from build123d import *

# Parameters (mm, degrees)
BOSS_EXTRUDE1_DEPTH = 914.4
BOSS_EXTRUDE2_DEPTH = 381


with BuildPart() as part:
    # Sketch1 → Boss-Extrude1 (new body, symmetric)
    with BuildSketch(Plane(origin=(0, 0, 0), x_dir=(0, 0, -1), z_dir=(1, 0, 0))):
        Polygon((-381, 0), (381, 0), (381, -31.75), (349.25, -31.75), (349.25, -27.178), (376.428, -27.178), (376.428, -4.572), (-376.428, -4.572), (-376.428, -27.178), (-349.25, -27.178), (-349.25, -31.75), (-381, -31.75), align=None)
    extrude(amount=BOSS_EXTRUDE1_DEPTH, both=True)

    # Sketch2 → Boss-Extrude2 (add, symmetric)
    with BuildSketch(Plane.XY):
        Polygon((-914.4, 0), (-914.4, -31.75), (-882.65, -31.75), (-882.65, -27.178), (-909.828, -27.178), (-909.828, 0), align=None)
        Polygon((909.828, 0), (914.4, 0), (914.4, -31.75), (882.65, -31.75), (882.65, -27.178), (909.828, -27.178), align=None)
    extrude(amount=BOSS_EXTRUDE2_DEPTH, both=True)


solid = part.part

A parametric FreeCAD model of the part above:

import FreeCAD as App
import Part
import Sketcher

V = App.Vector
Q = App.Units.Quantity

doc = App.newDocument("Part")
body = doc.addObject("PartDesign::Body", "Body")

# Sketch on YZ plane
sketch1 = body.newObject("Sketcher::SketchObject", "Sketch")
sketch1.AttachmentSupport = (doc.getObject("YZ_Plane"), [""])
sketch1.MapMode = "FlatFace"
sketch1.addGeometry(Part.LineSegment(V(0, -381, 0), V(0, 381, 0)), False)
sketch1.addGeometry(Part.LineSegment(V(0, 381, 0), V(-31.8, 381, 0)), False)
sketch1.addGeometry(Part.LineSegment(V(-31.8, 381, 0), V(-31.8, 349.2, 0)), False)
sketch1.addGeometry(Part.LineSegment(V(-31.8, 349.2, 0), V(-27.2, 349.2, 0)), False)
sketch1.addGeometry(Part.LineSegment(V(-27.2, 349.2, 0), V(-27.2, 376.4, 0)), False)
sketch1.addGeometry(Part.LineSegment(V(-27.2, 376.4, 0), V(-4.6, 376.4, 0)), False)
sketch1.addGeometry(Part.LineSegment(V(-4.6, 376.4, 0), V(-4.6, -376.4, 0)), False)
sketch1.addGeometry(Part.LineSegment(V(-4.6, -376.4, 0), V(-27.2, -376.4, 0)), False)
sketch1.addGeometry(Part.LineSegment(V(-27.2, -376.4, 0), V(-27.2, -349.2, 0)), False)
sketch1.addGeometry(Part.LineSegment(V(-27.2, -349.2, 0), V(-31.8, -349.2, 0)), False)
sketch1.addGeometry(Part.LineSegment(V(-31.8, -349.2, 0), V(-31.8, -381, 0)), False)
sketch1.addGeometry(Part.LineSegment(V(-31.8, -381, 0), V(0, -381, 0)), False)
sketch1.addConstraint(Sketcher.Constraint("Coincident", 0, 2, 1, 1))
sketch1.addConstraint(Sketcher.Constraint("Coincident", 1, 2, 2, 1))
sketch1.addConstraint(Sketcher.Constraint("Coincident", 2, 2, 3, 1))
sketch1.addConstraint(Sketcher.Constraint("Coincident", 3, 2, 4, 1))
sketch1.addConstraint(Sketcher.Constraint("Coincident", 4, 2, 5, 1))
sketch1.addConstraint(Sketcher.Constraint("Coincident", 5, 2, 6, 1))
sketch1.addConstraint(Sketcher.Constraint("Coincident", 6, 2, 7, 1))
sketch1.addConstraint(Sketcher.Constraint("Coincident", 7, 2, 8, 1))
sketch1.addConstraint(Sketcher.Constraint("Coincident", 8, 2, 9, 1))
sketch1.addConstraint(Sketcher.Constraint("Coincident", 9, 2, 10, 1))
sketch1.addConstraint(Sketcher.Constraint("Coincident", 10, 2, 11, 1))
sketch1.addConstraint(Sketcher.Constraint("Coincident", 11, 2, 0, 1))
sketch1.addConstraint(Sketcher.Constraint("Vertical", 0))
sketch1.addConstraint(Sketcher.Constraint("Horizontal", 1))
sketch1.addConstraint(Sketcher.Constraint("Vertical", 2))
sketch1.addConstraint(Sketcher.Constraint("Horizontal", 3))
sketch1.addConstraint(Sketcher.Constraint("Vertical", 4))
sketch1.addConstraint(Sketcher.Constraint("Horizontal", 5))
sketch1.addConstraint(Sketcher.Constraint("Vertical", 6))
sketch1.addConstraint(Sketcher.Constraint("Horizontal", 7))
sketch1.addConstraint(Sketcher.Constraint("Vertical", 8))
sketch1.addConstraint(Sketcher.Constraint("Horizontal", 9))
sketch1.addConstraint(Sketcher.Constraint("Vertical", 10))
sketch1.addConstraint(Sketcher.Constraint("Horizontal", 11))
sketch1.addConstraint(Sketcher.Constraint("Symmetric", 0, 2, 11, 2, -1, 1))
sketch1.addConstraint(Sketcher.Constraint("Symmetric", 4, 2, 7, 2, -1))
sketch1.addConstraint(Sketcher.Constraint("Symmetric", 2, 2, 9, 2, -1))
sketch1.addConstraint(Sketcher.Constraint("Equal", 11, 2))
sketch1.addConstraint(Sketcher.Constraint("DistanceY", 0, 1, 0, 2, Q("30 in")))
sketch1.addConstraint(Sketcher.Constraint("DistanceX", 1, 2, 1, 1, Q("1.25 in")))
sketch1.addConstraint(Sketcher.Constraint("DistanceX", 3, 1, 3, 2, Q("0.18 in")))
sketch1.addConstraint(Sketcher.Constraint("DistanceX", 5, 1, 5, 2, Q("0.89 in")))
sketch1.addConstraint(Sketcher.Constraint("DistanceY", 4, 1, 4, 2, Q("1.07 in")))
pad1 = body.newObject("PartDesign::Pad", "Pad")
pad1.Profile = sketch1
pad1.Length = Q("72 in")
pad1.Midplane = True

# Sketch on XY plane
sketch2 = body.newObject("Sketcher::SketchObject", "Sketch001")
sketch2.AttachmentSupport = (doc.getObject("XY_Plane"), [""])
sketch2.MapMode = "FlatFace"
sketch2.addGeometry(Part.LineSegment(V(-914.4, 0, 0), V(-914.4, -31.8, 0)), False)
sketch2.addGeometry(Part.LineSegment(V(-914.4, -31.8, 0), V(-882.6, -31.8, 0)), False)
sketch2.addGeometry(Part.LineSegment(V(-882.6, -31.8, 0), V(-882.6, -27.2, 0)), False)
sketch2.addGeometry(Part.LineSegment(V(-882.6, -27.2, 0), V(-909.8, -27.2, 0)), False)
sketch2.addGeometry(Part.LineSegment(V(-909.8, -27.2, 0), V(-909.8, 0, 0)), False)
sketch2.addGeometry(Part.LineSegment(V(-909.8, 0, 0), V(-914.4, 0, 0)), False)
sketch2.addGeometry(Part.LineSegment(V(914.4, 0, 0), V(909.8, 0, 0)), False)
sketch2.addGeometry(Part.LineSegment(V(909.8, 0, 0), V(909.8, -27.2, 0)), False)
sketch2.addGeometry(Part.LineSegment(V(909.8, -27.2, 0), V(882.6, -27.2, 0)), False)
sketch2.addGeometry(Part.LineSegment(V(882.6, -27.2, 0), V(882.6, -31.8, 0)), False)
sketch2.addGeometry(Part.LineSegment(V(882.6, -31.8, 0), V(914.4, -31.8, 0)), False)
sketch2.addGeometry(Part.LineSegment(V(914.4, -31.8, 0), V(914.4, 0, 0)), False)
sketch2.addConstraint(Sketcher.Constraint("Coincident", 0, 2, 1, 1))
sketch2.addConstraint(Sketcher.Constraint("Coincident", 1, 2, 2, 1))
sketch2.addConstraint(Sketcher.Constraint("Coincident", 2, 2, 3, 1))
sketch2.addConstraint(Sketcher.Constraint("Coincident", 3, 2, 4, 1))
sketch2.addConstraint(Sketcher.Constraint("Coincident", 4, 2, 5, 1))
sketch2.addConstraint(Sketcher.Constraint("Coincident", 5, 2, 0, 1))
sketch2.addConstraint(Sketcher.Constraint("Coincident", 6, 2, 7, 1))
sketch2.addConstraint(Sketcher.Constraint("Coincident", 7, 2, 8, 1))
sketch2.addConstraint(Sketcher.Constraint("Coincident", 8, 2, 9, 1))
sketch2.addConstraint(Sketcher.Constraint("Coincident", 9, 2, 10, 1))
sketch2.addConstraint(Sketcher.Constraint("Coincident", 10, 2, 11, 1))
sketch2.addConstraint(Sketcher.Constraint("Coincident", 11, 2, 6, 1))
sketch2.addConstraint(Sketcher.Constraint("Vertical", 0))
sketch2.addConstraint(Sketcher.Constraint("Horizontal", 1))
sketch2.addConstraint(Sketcher.Constraint("Vertical", 2))
sketch2.addConstraint(Sketcher.Constraint("Horizontal", 3))
sketch2.addConstraint(Sketcher.Constraint("Vertical", 4))
sketch2.addConstraint(Sketcher.Constraint("Horizontal", 5))
sketch2.addConstraint(Sketcher.Constraint("Horizontal", 6))
sketch2.addConstraint(Sketcher.Constraint("Vertical", 7))
sketch2.addConstraint(Sketcher.Constraint("Horizontal", 8))
sketch2.addConstraint(Sketcher.Constraint("Vertical", 9))
sketch2.addConstraint(Sketcher.Constraint("Horizontal", 10))
sketch2.addConstraint(Sketcher.Constraint("Vertical", 11))
sketch2.addConstraint(Sketcher.Constraint("Symmetric", 4, 2, 6, 2, -1, 1))
sketch2.addConstraint(Sketcher.Constraint("Symmetric", 2, 2, 8, 2, -2))
sketch2.addConstraint(Sketcher.Constraint("Symmetric", 0, 2, 10, 2, -2))
sketch2.addConstraint(Sketcher.Constraint("PointOnObject", 4, 2, -1))
sketch2.addConstraint(Sketcher.Constraint("Equal", 10, 0))
sketch2.addConstraint(Sketcher.Constraint("Equal", 6, 2))
sketch2.addConstraint(Sketcher.Constraint("DistanceX", 0, 2, -1, 1, Q("36 in")))
sketch2.addConstraint(Sketcher.Constraint("DistanceX", 1, 1, 1, 2, Q("1.25 in")))
sketch2.addConstraint(Sketcher.Constraint("DistanceX", 3, 2, 3, 1, Q("1.07 in")))
pad2 = body.newObject("PartDesign::Pad", "Pad001")
pad2.Profile = sketch2
pad2.Length = Q("30 in")
pad2.Midplane = True

doc.recompute()
